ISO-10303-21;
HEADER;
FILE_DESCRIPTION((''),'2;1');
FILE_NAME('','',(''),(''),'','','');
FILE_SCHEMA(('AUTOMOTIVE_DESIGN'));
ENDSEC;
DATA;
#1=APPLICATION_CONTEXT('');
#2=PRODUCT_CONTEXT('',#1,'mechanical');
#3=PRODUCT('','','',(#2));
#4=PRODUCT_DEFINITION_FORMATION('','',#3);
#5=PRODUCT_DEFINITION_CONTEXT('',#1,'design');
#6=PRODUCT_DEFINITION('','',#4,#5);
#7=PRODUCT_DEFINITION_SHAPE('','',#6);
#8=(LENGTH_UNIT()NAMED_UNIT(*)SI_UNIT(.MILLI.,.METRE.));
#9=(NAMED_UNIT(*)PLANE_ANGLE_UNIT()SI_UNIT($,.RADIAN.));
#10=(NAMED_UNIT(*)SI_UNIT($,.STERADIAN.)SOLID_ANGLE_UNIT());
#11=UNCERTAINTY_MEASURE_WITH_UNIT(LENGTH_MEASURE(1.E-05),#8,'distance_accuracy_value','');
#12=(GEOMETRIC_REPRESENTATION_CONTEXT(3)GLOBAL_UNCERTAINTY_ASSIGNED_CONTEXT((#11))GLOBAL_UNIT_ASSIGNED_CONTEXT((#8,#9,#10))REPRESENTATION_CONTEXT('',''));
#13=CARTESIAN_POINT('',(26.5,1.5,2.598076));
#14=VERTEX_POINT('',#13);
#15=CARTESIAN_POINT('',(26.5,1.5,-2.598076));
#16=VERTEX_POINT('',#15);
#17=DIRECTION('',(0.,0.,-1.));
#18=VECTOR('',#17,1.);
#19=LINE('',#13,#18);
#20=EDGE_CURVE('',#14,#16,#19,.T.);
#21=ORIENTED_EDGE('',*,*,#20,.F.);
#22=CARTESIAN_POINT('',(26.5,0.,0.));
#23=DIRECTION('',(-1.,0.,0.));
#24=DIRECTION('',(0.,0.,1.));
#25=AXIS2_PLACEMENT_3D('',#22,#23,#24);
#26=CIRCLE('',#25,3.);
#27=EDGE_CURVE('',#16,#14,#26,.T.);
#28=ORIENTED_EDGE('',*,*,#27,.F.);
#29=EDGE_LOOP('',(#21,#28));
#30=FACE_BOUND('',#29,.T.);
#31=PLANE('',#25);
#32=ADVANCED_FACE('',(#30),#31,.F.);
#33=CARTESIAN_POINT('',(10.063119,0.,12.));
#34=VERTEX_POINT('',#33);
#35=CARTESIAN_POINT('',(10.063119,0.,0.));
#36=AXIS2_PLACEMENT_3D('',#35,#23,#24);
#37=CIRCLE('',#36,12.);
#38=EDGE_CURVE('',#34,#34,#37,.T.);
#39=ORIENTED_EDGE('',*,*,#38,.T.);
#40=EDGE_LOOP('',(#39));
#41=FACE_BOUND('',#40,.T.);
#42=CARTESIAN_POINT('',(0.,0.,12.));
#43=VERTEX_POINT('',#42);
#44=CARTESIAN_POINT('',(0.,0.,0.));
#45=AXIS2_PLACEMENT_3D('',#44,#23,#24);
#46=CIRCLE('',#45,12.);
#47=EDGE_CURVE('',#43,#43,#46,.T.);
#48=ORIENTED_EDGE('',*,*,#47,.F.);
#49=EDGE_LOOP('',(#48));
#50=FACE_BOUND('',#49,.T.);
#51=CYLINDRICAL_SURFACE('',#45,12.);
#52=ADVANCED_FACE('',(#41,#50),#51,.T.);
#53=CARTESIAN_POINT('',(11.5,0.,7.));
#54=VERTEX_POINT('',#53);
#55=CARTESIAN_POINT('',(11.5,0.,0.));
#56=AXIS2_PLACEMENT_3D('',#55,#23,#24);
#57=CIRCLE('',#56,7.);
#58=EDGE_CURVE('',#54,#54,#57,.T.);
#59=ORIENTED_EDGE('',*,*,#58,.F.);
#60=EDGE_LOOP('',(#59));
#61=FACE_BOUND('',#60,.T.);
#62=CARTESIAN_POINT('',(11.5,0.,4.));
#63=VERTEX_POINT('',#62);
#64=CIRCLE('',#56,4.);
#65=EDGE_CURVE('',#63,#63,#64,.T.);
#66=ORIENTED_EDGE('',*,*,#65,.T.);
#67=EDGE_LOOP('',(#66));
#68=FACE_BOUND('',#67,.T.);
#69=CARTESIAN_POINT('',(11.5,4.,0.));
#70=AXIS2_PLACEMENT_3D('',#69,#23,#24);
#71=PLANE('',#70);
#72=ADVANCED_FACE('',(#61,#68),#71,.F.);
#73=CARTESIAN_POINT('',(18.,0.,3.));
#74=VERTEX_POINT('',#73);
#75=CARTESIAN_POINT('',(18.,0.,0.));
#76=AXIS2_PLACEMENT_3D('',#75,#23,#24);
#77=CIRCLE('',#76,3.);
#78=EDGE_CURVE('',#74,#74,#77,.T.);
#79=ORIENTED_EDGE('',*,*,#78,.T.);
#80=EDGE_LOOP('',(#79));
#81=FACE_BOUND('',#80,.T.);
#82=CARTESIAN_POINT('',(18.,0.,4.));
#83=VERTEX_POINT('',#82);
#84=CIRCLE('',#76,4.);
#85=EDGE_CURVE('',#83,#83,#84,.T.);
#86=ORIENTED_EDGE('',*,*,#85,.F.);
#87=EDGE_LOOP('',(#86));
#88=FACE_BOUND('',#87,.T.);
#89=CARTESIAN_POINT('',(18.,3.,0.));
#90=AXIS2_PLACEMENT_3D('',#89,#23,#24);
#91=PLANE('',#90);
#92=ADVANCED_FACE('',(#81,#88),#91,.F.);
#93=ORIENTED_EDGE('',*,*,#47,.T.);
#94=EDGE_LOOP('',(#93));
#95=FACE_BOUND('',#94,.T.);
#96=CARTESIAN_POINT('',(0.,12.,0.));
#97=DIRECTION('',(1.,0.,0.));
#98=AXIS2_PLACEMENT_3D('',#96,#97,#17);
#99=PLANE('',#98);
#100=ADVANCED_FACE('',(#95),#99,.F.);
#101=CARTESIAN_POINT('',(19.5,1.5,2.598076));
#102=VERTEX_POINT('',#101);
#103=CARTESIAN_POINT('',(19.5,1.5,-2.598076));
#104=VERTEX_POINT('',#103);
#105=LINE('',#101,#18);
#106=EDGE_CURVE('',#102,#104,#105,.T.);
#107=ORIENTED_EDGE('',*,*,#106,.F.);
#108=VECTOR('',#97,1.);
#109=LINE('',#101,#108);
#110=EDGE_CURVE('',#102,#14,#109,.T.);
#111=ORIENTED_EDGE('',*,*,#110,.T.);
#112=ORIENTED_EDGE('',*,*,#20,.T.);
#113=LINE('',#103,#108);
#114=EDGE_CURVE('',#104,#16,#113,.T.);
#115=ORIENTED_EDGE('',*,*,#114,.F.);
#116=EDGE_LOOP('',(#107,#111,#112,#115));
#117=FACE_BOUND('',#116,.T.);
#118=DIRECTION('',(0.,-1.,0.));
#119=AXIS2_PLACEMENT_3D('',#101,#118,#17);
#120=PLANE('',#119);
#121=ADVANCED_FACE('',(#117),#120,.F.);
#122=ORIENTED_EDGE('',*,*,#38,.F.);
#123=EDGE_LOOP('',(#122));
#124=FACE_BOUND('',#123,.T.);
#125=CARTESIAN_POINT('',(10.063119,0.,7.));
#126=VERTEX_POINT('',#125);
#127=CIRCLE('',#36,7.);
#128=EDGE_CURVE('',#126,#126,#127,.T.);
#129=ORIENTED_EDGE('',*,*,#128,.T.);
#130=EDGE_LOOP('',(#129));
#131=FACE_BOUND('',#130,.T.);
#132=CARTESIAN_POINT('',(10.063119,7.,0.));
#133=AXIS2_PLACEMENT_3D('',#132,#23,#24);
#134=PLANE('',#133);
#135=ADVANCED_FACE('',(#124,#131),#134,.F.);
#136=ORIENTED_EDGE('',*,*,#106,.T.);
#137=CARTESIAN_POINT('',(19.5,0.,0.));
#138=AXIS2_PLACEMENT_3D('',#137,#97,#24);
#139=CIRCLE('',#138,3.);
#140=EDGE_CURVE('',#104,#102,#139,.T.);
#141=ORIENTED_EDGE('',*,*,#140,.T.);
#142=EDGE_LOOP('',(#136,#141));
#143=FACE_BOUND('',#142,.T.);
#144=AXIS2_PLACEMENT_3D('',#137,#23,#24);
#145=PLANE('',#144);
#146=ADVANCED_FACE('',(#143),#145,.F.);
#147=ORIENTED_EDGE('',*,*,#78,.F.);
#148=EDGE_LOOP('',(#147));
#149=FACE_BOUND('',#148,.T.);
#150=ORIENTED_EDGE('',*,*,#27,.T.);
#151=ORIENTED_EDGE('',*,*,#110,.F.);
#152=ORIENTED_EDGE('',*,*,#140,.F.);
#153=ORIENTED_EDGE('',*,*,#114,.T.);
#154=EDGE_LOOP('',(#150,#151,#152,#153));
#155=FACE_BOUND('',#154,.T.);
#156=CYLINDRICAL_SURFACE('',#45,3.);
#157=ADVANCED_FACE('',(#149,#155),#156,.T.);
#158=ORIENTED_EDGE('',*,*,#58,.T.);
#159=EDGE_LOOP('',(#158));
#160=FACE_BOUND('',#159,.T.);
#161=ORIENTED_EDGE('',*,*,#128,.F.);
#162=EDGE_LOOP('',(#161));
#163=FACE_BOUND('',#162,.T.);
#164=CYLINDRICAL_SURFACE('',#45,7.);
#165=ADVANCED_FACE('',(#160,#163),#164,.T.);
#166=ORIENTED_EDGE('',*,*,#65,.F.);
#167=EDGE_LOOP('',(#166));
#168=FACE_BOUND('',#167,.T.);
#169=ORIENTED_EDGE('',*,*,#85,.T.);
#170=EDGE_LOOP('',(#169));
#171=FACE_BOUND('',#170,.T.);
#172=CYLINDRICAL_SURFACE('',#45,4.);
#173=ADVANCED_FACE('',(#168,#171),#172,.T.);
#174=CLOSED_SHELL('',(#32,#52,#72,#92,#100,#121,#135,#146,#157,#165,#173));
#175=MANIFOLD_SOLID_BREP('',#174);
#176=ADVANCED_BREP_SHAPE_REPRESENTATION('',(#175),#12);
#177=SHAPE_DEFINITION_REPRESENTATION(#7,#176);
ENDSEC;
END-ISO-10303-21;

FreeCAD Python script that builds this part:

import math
import FreeCAD as App
import Part
import Sketcher
from FreeCAD import Vector
Q = App.Units.Quantity

doc = App.newDocument("Part")
body = doc.addObject("PartDesign::Body", "Body")

# Sketch on XY plane
sketch1 = body.newObject("Sketcher::SketchObject", "Sketch")
sketch1.AttachmentSupport = (doc.getObject("XY_Plane"), [""])
sketch1.MapMode = "FlatFace"
sketch1.addGeometry([
    Part.LineSegment(Vector(0, 0, 0), Vector(26.5, 0, 0)),  # 0
    Part.LineSegment(Vector(26.5, 0, 0), Vector(26.5, 3, 0)),  # 1
    Part.LineSegment(Vector(26.5, 3, 0), Vector(18, 3, 0)),  # 2
    Part.LineSegment(Vector(18, 3, 0), Vector(18, 4, 0)),  # 3
    Part.LineSegment(Vector(18, 4, 0), Vector(11.5, 4, 0)),  # 4
    Part.LineSegment(Vector(11.5, 4, 0), Vector(11.5, 7, 0)),  # 5
    Part.LineSegment(Vector(11.5, 7, 0), Vector(10.1, 7, 0)),  # 6
    Part.LineSegment(Vector(10.1, 7, 0), Vector(10.1, 12, 0)),  # 7
    Part.LineSegment(Vector(10.1, 12, 0), Vector(0, 12, 0)),  # 8
    Part.LineSegment(Vector(0, 12, 0), Vector(0, 0, 0)),  # 9
], False)
sketch1.addConstraint([
    Sketcher.Constraint("Coincident", 0, 2, 1, 1),
    Sketcher.Constraint("Coincident", 1, 2, 2, 1),
    Sketcher.Constraint("Coincident", 2, 2, 3, 1),
    Sketcher.Constraint("Coincident", 3, 2, 4, 1),
    Sketcher.Constraint("Coincident", 4, 2, 5, 1),
    Sketcher.Constraint("Coincident", 5, 2, 6, 1),
    Sketcher.Constraint("Coincident", 6, 2, 7, 1),
    Sketcher.Constraint("Coincident", 7, 2, 8, 1),
    Sketcher.Constraint("Coincident", 8, 2, 9, 1),
    Sketcher.Constraint("Coincident", 9, 2, 0, 1),
    Sketcher.Constraint("Horizontal", 0),
    Sketcher.Constraint("Vertical", 1),
    Sketcher.Constraint("Horizontal", 2),
    Sketcher.Constraint("Vertical", 3),
    Sketcher.Constraint("Horizontal", 4),
    Sketcher.Constraint("Vertical", 5),
    Sketcher.Constraint("Horizontal", 6),
    Sketcher.Constraint("Vertical", 7),
    Sketcher.Constraint("Horizontal", 8),
    Sketcher.Constraint("Vertical", 9),
    Sketcher.Constraint("Coincident", 9, 2, -1, 1),
    Sketcher.Constraint("Equal", 1, 5),
    Sketcher.Constraint("DistanceY", 1, 1, 1, 2, Q("3 mm")),
    Sketcher.Constraint("DistanceY", 3, 1, 3, 2, Q("1 mm")),
    Sketcher.Constraint("DistanceY", 7, 1, 7, 2, Q("5 mm")),
    Sketcher.Constraint("DistanceX", 0, 1, 0, 2, Q("26.5 mm")),
    Sketcher.Constraint("DistanceX", 2, 2, 2, 1, Q("8.5 mm")),
    Sketcher.Constraint("DistanceX", 4, 2, 4, 1, Q("6.5 mm")),
    Sketcher.Constraint("DistanceX", 6, 2, 6, 1, Q("1.436881 mm")),
])
revolution = body.newObject("PartDesign::Revolution", "Revolution")
revolution.Profile = sketch1
revolution.ReferenceAxis = (sketch1, ["H_Axis"])
revolution.Angle = 360

# Sketch on YZ plane
sketch2 = body.newObject("Sketcher::SketchObject", "Sketch001")
sketch2.AttachmentSupport = (doc.getObject("YZ_Plane"), [""])
sketch2.MapMode = "FlatFace"
sketch2.AttachmentOffset = App.Placement(Vector(0, 0, 26.5), App.Rotation())
sketch2.addGeometry([
    Part.LineSegment(Vector(1.5, 2.6, 0), Vector(1.5, -2.6, 0)),
    Part.ArcOfCircle(Part.Circle(Vector(0, 0, 0), Vector(0, 0, 1), 3), math.radians(-60), math.radians(60)),
], False)
sketch2.addConstraint([
    Sketcher.Constraint("Coincident", 0, 1, 1, 2),
    Sketcher.Constraint("Coincident", 1, 1, 0, 2),
    Sketcher.Constraint("Vertical", 0),
    Sketcher.Constraint("Coincident", 1, 3, -1, 1),
    Sketcher.Constraint("Radius", 1, Q("3 mm")),
    Sketcher.Constraint("DistanceX", -1, 1, 0, 1, Q("1.5 mm")),
])
pocket1 = body.newObject("PartDesign::Pocket", "Pocket")
pocket1.Profile = sketch2
pocket1.Length = 7

doc.recompute()
